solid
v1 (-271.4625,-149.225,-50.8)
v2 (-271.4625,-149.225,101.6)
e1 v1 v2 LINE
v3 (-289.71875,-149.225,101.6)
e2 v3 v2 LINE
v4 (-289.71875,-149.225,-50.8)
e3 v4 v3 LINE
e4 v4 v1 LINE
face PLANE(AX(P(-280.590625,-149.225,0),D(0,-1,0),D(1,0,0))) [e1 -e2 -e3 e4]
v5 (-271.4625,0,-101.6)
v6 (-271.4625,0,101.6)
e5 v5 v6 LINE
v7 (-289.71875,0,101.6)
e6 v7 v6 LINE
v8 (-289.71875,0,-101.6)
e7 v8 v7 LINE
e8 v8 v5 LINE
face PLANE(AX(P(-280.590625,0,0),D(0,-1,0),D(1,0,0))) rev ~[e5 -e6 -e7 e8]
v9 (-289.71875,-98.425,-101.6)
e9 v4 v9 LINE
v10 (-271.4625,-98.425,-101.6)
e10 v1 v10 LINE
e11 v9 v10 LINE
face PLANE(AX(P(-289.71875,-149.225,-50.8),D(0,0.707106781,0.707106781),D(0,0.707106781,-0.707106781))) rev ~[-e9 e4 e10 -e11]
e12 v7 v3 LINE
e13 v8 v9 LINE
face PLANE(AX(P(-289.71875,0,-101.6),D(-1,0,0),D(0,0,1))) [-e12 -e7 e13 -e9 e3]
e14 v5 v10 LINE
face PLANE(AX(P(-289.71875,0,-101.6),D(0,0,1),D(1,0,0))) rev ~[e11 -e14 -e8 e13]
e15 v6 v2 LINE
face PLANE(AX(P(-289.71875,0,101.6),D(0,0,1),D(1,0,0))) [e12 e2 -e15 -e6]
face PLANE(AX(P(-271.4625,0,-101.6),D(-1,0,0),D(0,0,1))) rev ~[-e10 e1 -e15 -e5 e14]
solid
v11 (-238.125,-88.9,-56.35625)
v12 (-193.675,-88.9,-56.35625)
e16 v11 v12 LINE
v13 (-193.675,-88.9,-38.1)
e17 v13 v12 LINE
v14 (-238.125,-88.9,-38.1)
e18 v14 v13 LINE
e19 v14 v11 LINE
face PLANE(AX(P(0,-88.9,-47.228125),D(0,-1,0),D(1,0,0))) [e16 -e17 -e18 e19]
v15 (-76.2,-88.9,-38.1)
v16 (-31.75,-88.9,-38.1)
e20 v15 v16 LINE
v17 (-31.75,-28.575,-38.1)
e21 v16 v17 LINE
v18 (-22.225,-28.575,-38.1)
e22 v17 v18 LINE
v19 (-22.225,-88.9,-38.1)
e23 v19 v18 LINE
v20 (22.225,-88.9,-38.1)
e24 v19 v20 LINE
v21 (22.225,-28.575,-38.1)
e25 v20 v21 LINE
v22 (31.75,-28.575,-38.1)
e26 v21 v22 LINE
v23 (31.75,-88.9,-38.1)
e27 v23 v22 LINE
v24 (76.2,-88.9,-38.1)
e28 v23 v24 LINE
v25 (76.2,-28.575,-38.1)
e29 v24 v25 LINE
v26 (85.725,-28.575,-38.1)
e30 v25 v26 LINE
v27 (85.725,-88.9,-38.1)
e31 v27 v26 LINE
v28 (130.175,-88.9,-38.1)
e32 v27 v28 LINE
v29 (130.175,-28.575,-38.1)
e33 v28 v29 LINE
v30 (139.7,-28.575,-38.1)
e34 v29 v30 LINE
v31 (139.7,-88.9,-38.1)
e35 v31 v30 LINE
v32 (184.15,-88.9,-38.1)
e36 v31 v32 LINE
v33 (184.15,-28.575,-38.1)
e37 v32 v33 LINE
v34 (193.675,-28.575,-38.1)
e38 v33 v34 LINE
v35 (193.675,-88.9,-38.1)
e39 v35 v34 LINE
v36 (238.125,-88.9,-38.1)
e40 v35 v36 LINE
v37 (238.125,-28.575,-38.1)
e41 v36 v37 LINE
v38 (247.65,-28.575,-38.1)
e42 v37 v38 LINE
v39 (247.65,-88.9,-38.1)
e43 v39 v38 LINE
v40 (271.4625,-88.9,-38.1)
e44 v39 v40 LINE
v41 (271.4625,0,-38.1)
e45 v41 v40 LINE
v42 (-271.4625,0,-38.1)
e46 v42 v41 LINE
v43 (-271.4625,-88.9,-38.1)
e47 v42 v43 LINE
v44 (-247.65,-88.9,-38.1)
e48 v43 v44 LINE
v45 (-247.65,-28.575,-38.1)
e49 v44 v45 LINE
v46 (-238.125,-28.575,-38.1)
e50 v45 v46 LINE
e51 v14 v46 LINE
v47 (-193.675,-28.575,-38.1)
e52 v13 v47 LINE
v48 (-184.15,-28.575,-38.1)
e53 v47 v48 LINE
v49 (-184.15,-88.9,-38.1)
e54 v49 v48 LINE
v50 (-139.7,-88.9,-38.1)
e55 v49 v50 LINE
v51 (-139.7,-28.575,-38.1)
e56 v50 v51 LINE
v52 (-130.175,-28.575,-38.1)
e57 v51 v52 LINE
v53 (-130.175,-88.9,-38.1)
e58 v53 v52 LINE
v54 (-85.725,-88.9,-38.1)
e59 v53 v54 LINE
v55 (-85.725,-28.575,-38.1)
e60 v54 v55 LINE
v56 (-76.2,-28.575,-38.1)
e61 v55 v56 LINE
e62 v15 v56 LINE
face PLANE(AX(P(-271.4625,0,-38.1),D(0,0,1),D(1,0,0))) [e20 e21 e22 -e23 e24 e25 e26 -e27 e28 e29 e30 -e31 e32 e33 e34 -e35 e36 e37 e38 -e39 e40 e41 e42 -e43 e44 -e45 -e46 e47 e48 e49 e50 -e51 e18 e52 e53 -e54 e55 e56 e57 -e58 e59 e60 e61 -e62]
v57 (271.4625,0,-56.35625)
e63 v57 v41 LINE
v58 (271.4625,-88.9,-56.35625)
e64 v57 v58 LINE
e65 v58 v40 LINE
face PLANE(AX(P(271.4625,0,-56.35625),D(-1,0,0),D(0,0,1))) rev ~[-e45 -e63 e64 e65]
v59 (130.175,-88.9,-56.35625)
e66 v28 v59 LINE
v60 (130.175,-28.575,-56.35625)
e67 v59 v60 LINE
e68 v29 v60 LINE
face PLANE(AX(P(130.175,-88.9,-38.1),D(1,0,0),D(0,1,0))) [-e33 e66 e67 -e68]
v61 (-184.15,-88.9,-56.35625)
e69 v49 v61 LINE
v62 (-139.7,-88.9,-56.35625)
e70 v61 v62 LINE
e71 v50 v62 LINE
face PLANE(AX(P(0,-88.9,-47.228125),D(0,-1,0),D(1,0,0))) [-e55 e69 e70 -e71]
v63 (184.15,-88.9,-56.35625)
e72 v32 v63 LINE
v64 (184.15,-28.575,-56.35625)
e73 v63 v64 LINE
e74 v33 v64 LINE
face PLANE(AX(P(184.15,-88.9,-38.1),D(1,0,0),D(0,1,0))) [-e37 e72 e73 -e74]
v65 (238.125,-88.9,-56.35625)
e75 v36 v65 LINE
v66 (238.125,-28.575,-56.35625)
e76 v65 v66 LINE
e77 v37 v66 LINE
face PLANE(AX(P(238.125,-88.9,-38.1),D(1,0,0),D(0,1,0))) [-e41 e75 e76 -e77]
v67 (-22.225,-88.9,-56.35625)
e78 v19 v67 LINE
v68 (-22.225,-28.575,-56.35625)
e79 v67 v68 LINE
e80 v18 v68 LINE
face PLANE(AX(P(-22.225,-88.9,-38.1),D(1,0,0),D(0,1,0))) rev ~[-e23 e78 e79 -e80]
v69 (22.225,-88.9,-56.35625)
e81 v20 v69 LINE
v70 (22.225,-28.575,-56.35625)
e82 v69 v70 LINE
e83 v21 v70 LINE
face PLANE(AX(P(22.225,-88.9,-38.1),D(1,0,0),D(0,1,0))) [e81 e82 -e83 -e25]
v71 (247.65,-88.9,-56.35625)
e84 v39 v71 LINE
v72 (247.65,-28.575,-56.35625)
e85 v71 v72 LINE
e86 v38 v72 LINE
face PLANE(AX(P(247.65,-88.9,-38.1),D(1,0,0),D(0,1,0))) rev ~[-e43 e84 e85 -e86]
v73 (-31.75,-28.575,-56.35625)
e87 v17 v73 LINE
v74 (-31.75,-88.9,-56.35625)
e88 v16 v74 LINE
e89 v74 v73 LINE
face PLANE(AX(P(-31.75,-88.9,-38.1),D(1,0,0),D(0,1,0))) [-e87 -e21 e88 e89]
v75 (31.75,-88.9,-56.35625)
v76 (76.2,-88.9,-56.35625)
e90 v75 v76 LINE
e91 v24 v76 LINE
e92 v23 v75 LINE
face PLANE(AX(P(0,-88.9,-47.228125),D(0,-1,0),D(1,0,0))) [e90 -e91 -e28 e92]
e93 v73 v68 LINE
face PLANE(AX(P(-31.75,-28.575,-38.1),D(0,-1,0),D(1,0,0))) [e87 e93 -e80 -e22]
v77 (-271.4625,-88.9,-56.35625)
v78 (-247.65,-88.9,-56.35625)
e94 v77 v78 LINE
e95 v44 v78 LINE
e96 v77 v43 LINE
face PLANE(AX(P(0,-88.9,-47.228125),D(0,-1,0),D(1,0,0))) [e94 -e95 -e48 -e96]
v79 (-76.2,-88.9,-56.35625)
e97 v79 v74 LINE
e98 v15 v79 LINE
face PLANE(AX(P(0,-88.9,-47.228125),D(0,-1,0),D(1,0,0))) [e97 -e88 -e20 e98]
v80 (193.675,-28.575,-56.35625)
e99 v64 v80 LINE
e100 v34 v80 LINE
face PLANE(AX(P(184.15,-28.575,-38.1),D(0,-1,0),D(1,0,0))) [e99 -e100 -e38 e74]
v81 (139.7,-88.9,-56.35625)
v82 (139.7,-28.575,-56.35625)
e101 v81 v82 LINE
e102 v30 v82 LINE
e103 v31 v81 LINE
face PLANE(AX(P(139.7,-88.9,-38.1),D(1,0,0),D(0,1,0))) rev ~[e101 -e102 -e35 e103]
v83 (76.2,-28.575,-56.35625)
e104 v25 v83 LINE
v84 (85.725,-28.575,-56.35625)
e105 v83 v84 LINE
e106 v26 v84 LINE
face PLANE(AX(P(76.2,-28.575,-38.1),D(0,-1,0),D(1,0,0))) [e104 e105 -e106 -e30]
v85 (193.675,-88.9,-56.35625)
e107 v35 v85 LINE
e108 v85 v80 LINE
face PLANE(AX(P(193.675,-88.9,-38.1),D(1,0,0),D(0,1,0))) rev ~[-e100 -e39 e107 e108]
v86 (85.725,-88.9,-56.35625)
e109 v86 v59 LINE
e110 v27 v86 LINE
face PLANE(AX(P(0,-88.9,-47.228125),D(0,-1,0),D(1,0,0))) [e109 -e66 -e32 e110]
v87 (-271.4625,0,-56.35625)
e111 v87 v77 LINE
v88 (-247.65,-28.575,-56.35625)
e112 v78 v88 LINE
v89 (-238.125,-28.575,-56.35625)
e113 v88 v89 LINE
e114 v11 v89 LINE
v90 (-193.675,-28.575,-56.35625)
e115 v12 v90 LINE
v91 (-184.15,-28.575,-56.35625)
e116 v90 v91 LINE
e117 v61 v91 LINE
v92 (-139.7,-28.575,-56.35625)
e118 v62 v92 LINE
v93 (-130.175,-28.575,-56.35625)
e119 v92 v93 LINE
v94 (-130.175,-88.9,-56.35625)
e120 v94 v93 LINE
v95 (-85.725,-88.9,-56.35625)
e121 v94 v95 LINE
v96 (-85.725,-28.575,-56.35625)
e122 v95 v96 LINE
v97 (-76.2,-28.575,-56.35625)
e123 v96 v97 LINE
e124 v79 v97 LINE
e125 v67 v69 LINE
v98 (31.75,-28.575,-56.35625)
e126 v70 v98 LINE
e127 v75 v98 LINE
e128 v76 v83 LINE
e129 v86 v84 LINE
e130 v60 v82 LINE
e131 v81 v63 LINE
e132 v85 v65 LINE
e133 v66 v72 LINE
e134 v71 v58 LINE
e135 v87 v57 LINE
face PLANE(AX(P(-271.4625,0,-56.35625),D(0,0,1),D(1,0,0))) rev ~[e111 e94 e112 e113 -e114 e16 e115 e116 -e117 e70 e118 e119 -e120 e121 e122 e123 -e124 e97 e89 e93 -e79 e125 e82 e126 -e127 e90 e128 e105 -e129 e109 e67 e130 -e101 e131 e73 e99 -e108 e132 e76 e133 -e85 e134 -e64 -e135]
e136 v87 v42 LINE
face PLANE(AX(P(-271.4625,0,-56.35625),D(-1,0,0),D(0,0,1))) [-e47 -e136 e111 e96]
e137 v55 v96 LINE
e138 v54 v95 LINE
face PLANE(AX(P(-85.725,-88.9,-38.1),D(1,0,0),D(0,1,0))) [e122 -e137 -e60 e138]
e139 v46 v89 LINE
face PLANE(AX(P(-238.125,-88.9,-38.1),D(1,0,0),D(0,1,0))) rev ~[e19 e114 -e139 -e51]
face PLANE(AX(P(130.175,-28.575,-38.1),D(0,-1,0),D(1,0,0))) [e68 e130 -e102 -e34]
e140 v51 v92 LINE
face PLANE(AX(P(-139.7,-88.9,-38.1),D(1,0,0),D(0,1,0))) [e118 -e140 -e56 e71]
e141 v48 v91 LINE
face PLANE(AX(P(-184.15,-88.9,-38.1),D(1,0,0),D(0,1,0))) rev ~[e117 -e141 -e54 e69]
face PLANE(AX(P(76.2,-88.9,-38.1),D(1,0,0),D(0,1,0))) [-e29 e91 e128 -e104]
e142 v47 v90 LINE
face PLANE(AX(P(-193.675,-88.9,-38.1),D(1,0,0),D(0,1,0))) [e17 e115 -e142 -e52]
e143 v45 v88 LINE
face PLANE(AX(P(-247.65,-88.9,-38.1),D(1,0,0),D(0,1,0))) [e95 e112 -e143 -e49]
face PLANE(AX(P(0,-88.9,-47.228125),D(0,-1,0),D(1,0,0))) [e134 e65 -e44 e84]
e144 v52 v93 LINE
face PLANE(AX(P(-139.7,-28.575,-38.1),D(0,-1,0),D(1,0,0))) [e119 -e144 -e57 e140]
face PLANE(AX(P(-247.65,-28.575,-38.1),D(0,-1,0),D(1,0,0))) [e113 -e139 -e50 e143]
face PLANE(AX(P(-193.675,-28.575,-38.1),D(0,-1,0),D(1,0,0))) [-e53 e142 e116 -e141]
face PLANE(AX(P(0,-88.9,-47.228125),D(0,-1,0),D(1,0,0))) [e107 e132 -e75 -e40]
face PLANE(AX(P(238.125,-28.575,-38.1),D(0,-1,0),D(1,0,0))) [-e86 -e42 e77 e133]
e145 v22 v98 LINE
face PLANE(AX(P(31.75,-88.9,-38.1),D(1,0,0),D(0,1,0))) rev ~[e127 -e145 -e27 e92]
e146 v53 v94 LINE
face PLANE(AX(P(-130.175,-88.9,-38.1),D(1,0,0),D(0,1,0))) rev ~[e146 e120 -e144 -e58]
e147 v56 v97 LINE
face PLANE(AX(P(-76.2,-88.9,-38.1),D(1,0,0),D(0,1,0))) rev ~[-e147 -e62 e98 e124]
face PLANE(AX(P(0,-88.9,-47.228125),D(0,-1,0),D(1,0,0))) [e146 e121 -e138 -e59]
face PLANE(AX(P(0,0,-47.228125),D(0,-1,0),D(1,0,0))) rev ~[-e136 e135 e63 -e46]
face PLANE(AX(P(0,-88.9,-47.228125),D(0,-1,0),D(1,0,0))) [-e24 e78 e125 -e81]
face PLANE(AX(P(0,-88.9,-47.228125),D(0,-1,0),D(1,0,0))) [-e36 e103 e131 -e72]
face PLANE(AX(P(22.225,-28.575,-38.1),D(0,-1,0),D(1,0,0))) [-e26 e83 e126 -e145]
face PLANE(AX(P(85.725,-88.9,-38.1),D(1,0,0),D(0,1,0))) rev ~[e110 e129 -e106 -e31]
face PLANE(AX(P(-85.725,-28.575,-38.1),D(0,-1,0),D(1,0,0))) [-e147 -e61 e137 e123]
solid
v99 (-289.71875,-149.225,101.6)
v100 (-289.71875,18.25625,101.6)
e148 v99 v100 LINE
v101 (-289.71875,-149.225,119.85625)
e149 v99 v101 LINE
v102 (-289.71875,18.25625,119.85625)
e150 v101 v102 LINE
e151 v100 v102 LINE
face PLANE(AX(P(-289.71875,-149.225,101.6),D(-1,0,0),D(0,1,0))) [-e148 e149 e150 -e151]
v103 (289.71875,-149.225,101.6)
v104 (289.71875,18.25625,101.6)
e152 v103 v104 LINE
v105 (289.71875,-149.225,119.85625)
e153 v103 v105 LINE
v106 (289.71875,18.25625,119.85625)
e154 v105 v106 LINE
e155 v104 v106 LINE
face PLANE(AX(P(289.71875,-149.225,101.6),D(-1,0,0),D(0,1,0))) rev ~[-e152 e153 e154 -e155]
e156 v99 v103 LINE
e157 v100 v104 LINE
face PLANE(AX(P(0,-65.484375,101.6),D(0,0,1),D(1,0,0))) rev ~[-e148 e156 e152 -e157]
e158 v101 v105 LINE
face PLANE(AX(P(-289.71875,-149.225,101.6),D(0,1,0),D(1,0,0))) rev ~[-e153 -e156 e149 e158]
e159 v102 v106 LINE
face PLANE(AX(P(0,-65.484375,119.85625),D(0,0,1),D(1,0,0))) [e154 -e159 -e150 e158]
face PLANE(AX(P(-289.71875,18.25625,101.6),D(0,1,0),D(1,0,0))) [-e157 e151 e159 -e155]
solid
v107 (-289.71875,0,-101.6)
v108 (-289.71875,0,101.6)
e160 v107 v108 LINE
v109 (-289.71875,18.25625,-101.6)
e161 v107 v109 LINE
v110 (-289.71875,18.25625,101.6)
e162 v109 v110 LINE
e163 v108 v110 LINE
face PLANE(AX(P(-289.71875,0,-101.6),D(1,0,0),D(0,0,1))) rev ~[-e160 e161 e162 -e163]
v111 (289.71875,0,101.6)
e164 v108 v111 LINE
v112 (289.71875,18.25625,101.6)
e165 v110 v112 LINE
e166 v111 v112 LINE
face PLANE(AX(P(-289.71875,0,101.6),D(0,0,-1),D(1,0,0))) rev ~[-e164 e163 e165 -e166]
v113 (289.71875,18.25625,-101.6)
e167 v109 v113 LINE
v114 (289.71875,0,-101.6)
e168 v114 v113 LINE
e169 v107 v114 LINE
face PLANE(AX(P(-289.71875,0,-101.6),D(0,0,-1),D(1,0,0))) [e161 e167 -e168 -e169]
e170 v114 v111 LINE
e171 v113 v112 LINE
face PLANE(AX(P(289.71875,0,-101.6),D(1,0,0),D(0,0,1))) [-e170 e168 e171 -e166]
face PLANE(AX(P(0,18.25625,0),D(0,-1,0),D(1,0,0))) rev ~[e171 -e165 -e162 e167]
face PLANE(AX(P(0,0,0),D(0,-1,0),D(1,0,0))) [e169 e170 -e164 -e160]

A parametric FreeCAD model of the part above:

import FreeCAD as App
import Part
import Sketcher
Q = App.Units.Quantity


def add_polygon(sketch, points):
    """Adds a closed chain of lines whose ends are joined by coincident constraints."""
    first, n = sketch.GeometryCount, len(points)
    for a, b in zip(points, points[1:] + points[:1]):
        sketch.addGeometry(Part.LineSegment(App.Vector(*a, 0), App.Vector(*b, 0)), False)
    for i in range(n):
        sketch.addConstraint(Sketcher.Constraint("Coincident", first + i, 2, first + (i + 1) % n, 1))

doc = App.newDocument("Part")
body = doc.addObject("PartDesign::Body", "Body")

sketch1 = body.newObject("Sketcher::SketchObject", "Sketch")
sketch1.AttachmentSupport = (doc.getObject("XZ_Plane"), [""])
sketch1.MapMode = "FlatFace"
add_polygon(sketch1, [(-290, 102), (-290, -102), (290, -102), (290, 102)])
sketch1.addConstraint(Sketcher.Constraint("Vertical", 0))
sketch1.addConstraint(Sketcher.Constraint("Horizontal", 1))
sketch1.addConstraint(Sketcher.Constraint("Vertical", 2))
sketch1.addConstraint(Sketcher.Constraint("Horizontal", 3))
sketch1.addConstraint(Sketcher.Constraint("Symmetric", 0, 2, 2, 2, -1, 1))
sketch1.addConstraint(Sketcher.Constraint("DistanceY", 0, 2, 0, 1, Q("8 in")))
sketch1.addConstraint(Sketcher.Constraint("DistanceX", 1, 1, 1, 2, Q("22.8125 in")))
pad1 = body.newObject("PartDesign::Pad", "Pad")
pad1.Profile = sketch1
pad1.Length = Q("0.71875 in")
pad1.Reversed = True
body2 = doc.addObject("PartDesign::Body", "Body001")

sketch2 = body2.newObject("Sketcher::SketchObject", "Sketch001")
sketch2.AttachmentSupport = (doc.getObject("XZ_Plane001"), [""])
sketch2.MapMode = "FlatFace"
add_polygon(sketch2, [(-290, 102), (-290, -102), (-271, -102), (-271, 102)])
sketch2.addConstraint(Sketcher.Constraint("Vertical", 0))
sketch2.addConstraint(Sketcher.Constraint("Horizontal", 1))
sketch2.addConstraint(Sketcher.Constraint("Vertical", 2))
sketch2.addConstraint(Sketcher.Constraint("Horizontal", 3))
sketch2.addConstraint(Sketcher.Constraint("DistanceY", 0, 2, 0, 1, Q("8 in")))
sketch2.addConstraint(Sketcher.Constraint("DistanceY", 0, 2, -1, 1, Q("4 in")))
sketch2.addConstraint(Sketcher.Constraint("DistanceX", 1, 1, 1, 2, Q("0.71875 in")))
sketch2.addConstraint(Sketcher.Constraint("DistanceX", 0, 2, -1, 1, Q("11.40625 in")))
pad2 = body2.newObject("PartDesign::Pad", "Pad001")
pad2.Profile = sketch2
pad2.Length = Q("5.875 in")

sketch3 = body2.newObject("Sketcher::SketchObject", "Sketch002")
sketch3.AttachmentSupport = (doc.getObject("YZ_Plane001"), [""])
sketch3.MapMode = "FlatFace"
sketch3.AttachmentOffset = App.Placement(App.Vector(0, 0, -11.40625 * 25.4), App.Rotation())
add_polygon(sketch3, [(-149, -102), (-149, -51), (-98, -102)])
sketch3.addConstraint(Sketcher.Constraint("Vertical", 0))
sketch3.addConstraint(Sketcher.Constraint("Horizontal", 2))
sketch3.addConstraint(Sketcher.Constraint("Equal", 2, 0))
sketch3.addConstraint(Sketcher.Constraint("DistanceX", 2, 2, 2, 1, Q("2 in")))
sketch3.addConstraint(Sketcher.Constraint("DistanceY", 0, 2, -1, 1, Q("2 in")))
sketch3.addConstraint(Sketcher.Constraint("DistanceX", 0, 2, -1, 1, Q("5.875 in")))
pocket1 = body2.newObject("PartDesign::Pocket", "Pocket")
pocket1.Profile = sketch3
pocket1.Length = Q("1 in")
pocket1.Reversed = True
body3 = doc.addObject("PartDesign::Body", "Body002")

sketch4 = body3.newObject("Sketcher::SketchObject", "Sketch003")
sketch4.AttachmentSupport = (doc.getObject("XY_Plane002"), [""])
sketch4.MapMode = "FlatFace"
sketch4.AttachmentOffset = App.Placement(App.Vector(0, 0, 4 * 25.4), App.Rotation())
add_polygon(sketch4, [(-290, 18), (-290, -149), (290, -149), (290, 18)])
sketch4.addConstraint(Sketcher.Constraint("Vertical", 0))
sketch4.addConstraint(Sketcher.Constraint("Horizontal", 1))
sketch4.addConstraint(Sketcher.Constraint("Vertical", 2))
sketch4.addConstraint(Sketcher.Constraint("Horizontal", 3))
sketch4.addConstraint(Sketcher.Constraint("DistanceX", 1, 1, 1, 2, Q("22.8125 in")))
sketch4.addConstraint(Sketcher.Constraint("DistanceY", 0, 2, 0, 1, Q("6.59375 in")))
sketch4.addConstraint(Sketcher.Constraint("DistanceX", 0, 2, -1, 1, Q("11.40625 in")))
sketch4.addConstraint(Sketcher.Constraint("DistanceY", 0, 2, -1, 1, Q("5.875 in")))
pad3 = body3.newObject("PartDesign::Pad", "Pad002")
pad3.Profile = sketch4
pad3.Length = Q("0.71875 in")
body4 = doc.addObject("PartDesign::Body", "Body003")

sketch5 = body4.newObject("Sketcher::SketchObject", "Sketch004")
sketch5.AttachmentSupport = (doc.getObject("XZ_Plane003"), [""])
sketch5.MapMode = "FlatFace"
add_polygon(sketch5, [(-271, -38), (-271, -56), (271, -56), (271, -38)])
sketch5.addConstraint(Sketcher.Constraint("Vertical", 0))
sketch5.addConstraint(Sketcher.Constraint("Horizontal", 1))
sketch5.addConstraint(Sketcher.Constraint("Vertical", 2))
sketch5.addConstraint(Sketcher.Constraint("Horizontal", 3))
sketch5.addConstraint(Sketcher.Constraint("DistanceY", 2, 2, -1, 1, Q("1.5 in")))
sketch5.addConstraint(Sketcher.Constraint("DistanceX", 1, 1, 1, 2, Q("21.375 in")))
sketch5.addConstraint(Sketcher.Constraint("DistanceY", 0, 2, 0, 1, Q("0.71875 in")))
sketch5.addConstraint(Sketcher.Constraint("DistanceX", 0, 2, -1, 1, Q("10.6875 in")))
pad4 = body4.newObject("PartDesign::Pad", "Pad003")
pad4.Profile = sketch5
pad4.Length = Q("3.5 in")

sketch6 = body4.newObject("Sketcher::SketchObject", "Sketch005")
sketch6.AttachmentSupport = (doc.getObject("XY_Plane003"), [""])
sketch6.MapMode = "FlatFace"
sketch6.AttachmentOffset = App.Placement(App.Vector(0, 0, -1.5 * 25.4), App.Rotation())
add_polygon(sketch6, [(-248, -29), (-248, -89), (-238, -89), (-238, -29)])
add_polygon(sketch6, [(-194, -29), (-194, -89), (-184, -89), (-184, -29)])
add_polygon(sketch6, [(-140, -29), (-140, -89), (-130, -89), (-130, -29)])
add_polygon(sketch6, [(-86, -29), (-86, -89), (-76, -89), (-76, -29)])
add_polygon(sketch6, [(-32, -29), (-32, -89), (-22, -89), (-22, -29)])
add_polygon(sketch6, [(22, -29), (22, -89), (32, -89), (32, -29)])
add_polygon(sketch6, [(76, -29), (76, -89), (86, -89), (86, -29)])
add_polygon(sketch6, [(130, -29), (130, -89), (140, -89), (140, -29)])
add_polygon(sketch6, [(184, -29), (184, -89), (194, -89), (194, -29)])
add_polygon(sketch6, [(238, -29), (238, -89), (248, -89), (248, -29)])
sketch6.addConstraint(Sketcher.Constraint("Vertical", 0))
sketch6.addConstraint(Sketcher.Constraint("Horizontal", 1))
sketch6.addConstraint(Sketcher.Constraint("Vertical", 2))
sketch6.addConstraint(Sketcher.Constraint("Horizontal", 3))
sketch6.addConstraint(Sketcher.Constraint("Vertical", 4))
sketch6.addConstraint(Sketcher.Constraint("Horizontal", 5))
sketch6.addConstraint(Sketcher.Constraint("Vertical", 6))
sketch6.addConstraint(Sketcher.Constraint("Horizontal", 7))
sketch6.addConstraint(Sketcher.Constraint("Vertical", 8))
sketch6.addConstraint(Sketcher.Constraint("Horizontal", 9))
sketch6.addConstraint(Sketcher.Constraint("Vertical", 10))
sketch6.addConstraint(Sketcher.Constraint("Horizontal", 11))
sketch6.addConstraint(Sketcher.Constraint("Vertical", 12))
sketch6.addConstraint(Sketcher.Constraint("Horizontal", 13))
sketch6.addConstraint(Sketcher.Constraint("Vertical", 14))
sketch6.addConstraint(Sketcher.Constraint("Horizontal", 15))
sketch6.addConstraint(Sketcher.Constraint("Vertical", 16))
sketch6.addConstraint(Sketcher.Constraint("Horizontal", 17))
sketch6.addConstraint(Sketcher.Constraint("Vertical", 18))
sketch6.addConstraint(Sketcher.Constraint("Horizontal", 19))
sketch6.addConstraint(Sketcher.Constraint("Vertical", 20))
sketch6.addConstraint(Sketcher.Constraint("Horizontal", 21))
sketch6.addConstraint(Sketcher.Constraint("Vertical", 22))
sketch6.addConstraint(Sketcher.Constraint("Horizontal", 23))
sketch6.addConstraint(Sketcher.Constraint("Vertical", 24))
sketch6.addConstraint(Sketcher.Constraint("Horizontal", 25))
sketch6.addConstraint(Sketcher.Constraint("Vertical", 26))
sketch6.addConstraint(Sketcher.Constraint("Horizontal", 27))
sketch6.addConstraint(Sketcher.Constraint("Vertical", 28))
sketch6.addConstraint(Sketcher.Constraint("Horizontal", 29))
sketch6.addConstraint(Sketcher.Constraint("Vertical", 30))
sketch6.addConstraint(Sketcher.Constraint("Horizontal", 31))
sketch6.addConstraint(Sketcher.Constraint("Vertical", 32))
sketch6.addConstraint(Sketcher.Constraint("Horizontal", 33))
sketch6.addConstraint(Sketcher.Constraint("Vertical", 34))
sketch6.addConstraint(Sketcher.Constraint("Horizontal", 35))
sketch6.addConstraint(Sketcher.Constraint("Vertical", 36))
sketch6.addConstraint(Sketcher.Constraint("Horizontal", 37))
sketch6.addConstraint(Sketcher.Constraint("Vertical", 38))
sketch6.addConstraint(Sketcher.Constraint("Horizontal", 39))
sketch6.addConstraint(Sketcher.Constraint("Symmetric", 17, 2, 20, 2, -2))
sketch6.addConstraint(Sketcher.Constraint("Symmetric", 19, 2, 22, 2, -2))
sketch6.addConstraint(Sketcher.Constraint("Symmetric", 13, 2, 24, 2, -2))
sketch6.addConstraint(Sketcher.Constraint("Symmetric", 15, 2, 26, 2, -2))
sketch6.addConstraint(Sketcher.Constraint("Symmetric", 9, 2, 28, 2, -2))
sketch6.addConstraint(Sketcher.Constraint("Symmetric", 11, 2, 30, 2, -2))
sketch6.addConstraint(Sketcher.Constraint("Symmetric", 5, 2, 32, 2, -2))
sketch6.addConstraint(Sketcher.Constraint("Symmetric", 7, 2, 34, 2, -2))
sketch6.addConstraint(Sketcher.Constraint("Symmetric", 1, 2, 36, 2, -2))
sketch6.addConstraint(Sketcher.Constraint("Symmetric", 3, 2, 38, 2, -2))
sketch6.addConstraint(Sketcher.Constraint("Horizontal", 1, 2, 4, 2))
sketch6.addConstraint(Sketcher.Constraint("Horizontal", 3, 2, 6, 2))
sketch6.addConstraint(Sketcher.Constraint("Horizontal", 5, 2, 8, 2))
sketch6.addConstraint(Sketcher.Constraint("Horizontal", 7, 2, 10, 2))
sketch6.addConstraint(Sketcher.Constraint("Horizontal", 9, 2, 12, 2))
sketch6.addConstraint(Sketcher.Constraint("Horizontal", 11, 2, 14, 2))
sketch6.addConstraint(Sketcher.Constraint("Horizontal", 13, 2, 16, 2))
sketch6.addConstraint(Sketcher.Constraint("Horizontal", 15, 2, 18, 2))
sketch6.addConstraint(Sketcher.Constraint("Equal", 3, 5))
sketch6.addConstraint(Sketcher.Constraint("Equal", 7, 9))
sketch6.addConstraint(Sketcher.Constraint("Equal", 11, 13))
sketch6.addConstraint(Sketcher.Constraint("Equal", 15, 17))
sketch6.addConstraint(Sketcher.Constraint("DistanceX", 13, 2, -1, 1, Q("3 in")))
sketch6.addConstraint(Sketcher.Constraint("DistanceY", 0, 2, -1, 1, Q("3.5 in")))
sketch6.addConstraint(Sketcher.Constraint("DistanceX", 8, 2, -1, 1, Q("5.5 in")))
sketch6.addConstraint(Sketcher.Constraint("DistanceX", 0, 2, 5, 2, Q("2.5 in")))
sketch6.addConstraint(Sketcher.Constraint("DistanceX", 4, 2, 9, 2, Q("2.5 in")))
sketch6.addConstraint(Sketcher.Constraint("DistanceX", 12, 2, 17, 2, Q("2.5 in")))
sketch6.addConstraint(Sketcher.Constraint("DistanceX", 16, 2, 21, 2, Q("2.5 in")))
sketch6.addConstraint(Sketcher.Constraint("DistanceY", 0, 2, 0, 1, Q("2.375 in")))
pocket2 = body4.newObject("PartDesign::Pocket", "Pocket001")
pocket2.Profile = sketch6
pocket2.Type = "ThroughAll"

doc.recompute()
